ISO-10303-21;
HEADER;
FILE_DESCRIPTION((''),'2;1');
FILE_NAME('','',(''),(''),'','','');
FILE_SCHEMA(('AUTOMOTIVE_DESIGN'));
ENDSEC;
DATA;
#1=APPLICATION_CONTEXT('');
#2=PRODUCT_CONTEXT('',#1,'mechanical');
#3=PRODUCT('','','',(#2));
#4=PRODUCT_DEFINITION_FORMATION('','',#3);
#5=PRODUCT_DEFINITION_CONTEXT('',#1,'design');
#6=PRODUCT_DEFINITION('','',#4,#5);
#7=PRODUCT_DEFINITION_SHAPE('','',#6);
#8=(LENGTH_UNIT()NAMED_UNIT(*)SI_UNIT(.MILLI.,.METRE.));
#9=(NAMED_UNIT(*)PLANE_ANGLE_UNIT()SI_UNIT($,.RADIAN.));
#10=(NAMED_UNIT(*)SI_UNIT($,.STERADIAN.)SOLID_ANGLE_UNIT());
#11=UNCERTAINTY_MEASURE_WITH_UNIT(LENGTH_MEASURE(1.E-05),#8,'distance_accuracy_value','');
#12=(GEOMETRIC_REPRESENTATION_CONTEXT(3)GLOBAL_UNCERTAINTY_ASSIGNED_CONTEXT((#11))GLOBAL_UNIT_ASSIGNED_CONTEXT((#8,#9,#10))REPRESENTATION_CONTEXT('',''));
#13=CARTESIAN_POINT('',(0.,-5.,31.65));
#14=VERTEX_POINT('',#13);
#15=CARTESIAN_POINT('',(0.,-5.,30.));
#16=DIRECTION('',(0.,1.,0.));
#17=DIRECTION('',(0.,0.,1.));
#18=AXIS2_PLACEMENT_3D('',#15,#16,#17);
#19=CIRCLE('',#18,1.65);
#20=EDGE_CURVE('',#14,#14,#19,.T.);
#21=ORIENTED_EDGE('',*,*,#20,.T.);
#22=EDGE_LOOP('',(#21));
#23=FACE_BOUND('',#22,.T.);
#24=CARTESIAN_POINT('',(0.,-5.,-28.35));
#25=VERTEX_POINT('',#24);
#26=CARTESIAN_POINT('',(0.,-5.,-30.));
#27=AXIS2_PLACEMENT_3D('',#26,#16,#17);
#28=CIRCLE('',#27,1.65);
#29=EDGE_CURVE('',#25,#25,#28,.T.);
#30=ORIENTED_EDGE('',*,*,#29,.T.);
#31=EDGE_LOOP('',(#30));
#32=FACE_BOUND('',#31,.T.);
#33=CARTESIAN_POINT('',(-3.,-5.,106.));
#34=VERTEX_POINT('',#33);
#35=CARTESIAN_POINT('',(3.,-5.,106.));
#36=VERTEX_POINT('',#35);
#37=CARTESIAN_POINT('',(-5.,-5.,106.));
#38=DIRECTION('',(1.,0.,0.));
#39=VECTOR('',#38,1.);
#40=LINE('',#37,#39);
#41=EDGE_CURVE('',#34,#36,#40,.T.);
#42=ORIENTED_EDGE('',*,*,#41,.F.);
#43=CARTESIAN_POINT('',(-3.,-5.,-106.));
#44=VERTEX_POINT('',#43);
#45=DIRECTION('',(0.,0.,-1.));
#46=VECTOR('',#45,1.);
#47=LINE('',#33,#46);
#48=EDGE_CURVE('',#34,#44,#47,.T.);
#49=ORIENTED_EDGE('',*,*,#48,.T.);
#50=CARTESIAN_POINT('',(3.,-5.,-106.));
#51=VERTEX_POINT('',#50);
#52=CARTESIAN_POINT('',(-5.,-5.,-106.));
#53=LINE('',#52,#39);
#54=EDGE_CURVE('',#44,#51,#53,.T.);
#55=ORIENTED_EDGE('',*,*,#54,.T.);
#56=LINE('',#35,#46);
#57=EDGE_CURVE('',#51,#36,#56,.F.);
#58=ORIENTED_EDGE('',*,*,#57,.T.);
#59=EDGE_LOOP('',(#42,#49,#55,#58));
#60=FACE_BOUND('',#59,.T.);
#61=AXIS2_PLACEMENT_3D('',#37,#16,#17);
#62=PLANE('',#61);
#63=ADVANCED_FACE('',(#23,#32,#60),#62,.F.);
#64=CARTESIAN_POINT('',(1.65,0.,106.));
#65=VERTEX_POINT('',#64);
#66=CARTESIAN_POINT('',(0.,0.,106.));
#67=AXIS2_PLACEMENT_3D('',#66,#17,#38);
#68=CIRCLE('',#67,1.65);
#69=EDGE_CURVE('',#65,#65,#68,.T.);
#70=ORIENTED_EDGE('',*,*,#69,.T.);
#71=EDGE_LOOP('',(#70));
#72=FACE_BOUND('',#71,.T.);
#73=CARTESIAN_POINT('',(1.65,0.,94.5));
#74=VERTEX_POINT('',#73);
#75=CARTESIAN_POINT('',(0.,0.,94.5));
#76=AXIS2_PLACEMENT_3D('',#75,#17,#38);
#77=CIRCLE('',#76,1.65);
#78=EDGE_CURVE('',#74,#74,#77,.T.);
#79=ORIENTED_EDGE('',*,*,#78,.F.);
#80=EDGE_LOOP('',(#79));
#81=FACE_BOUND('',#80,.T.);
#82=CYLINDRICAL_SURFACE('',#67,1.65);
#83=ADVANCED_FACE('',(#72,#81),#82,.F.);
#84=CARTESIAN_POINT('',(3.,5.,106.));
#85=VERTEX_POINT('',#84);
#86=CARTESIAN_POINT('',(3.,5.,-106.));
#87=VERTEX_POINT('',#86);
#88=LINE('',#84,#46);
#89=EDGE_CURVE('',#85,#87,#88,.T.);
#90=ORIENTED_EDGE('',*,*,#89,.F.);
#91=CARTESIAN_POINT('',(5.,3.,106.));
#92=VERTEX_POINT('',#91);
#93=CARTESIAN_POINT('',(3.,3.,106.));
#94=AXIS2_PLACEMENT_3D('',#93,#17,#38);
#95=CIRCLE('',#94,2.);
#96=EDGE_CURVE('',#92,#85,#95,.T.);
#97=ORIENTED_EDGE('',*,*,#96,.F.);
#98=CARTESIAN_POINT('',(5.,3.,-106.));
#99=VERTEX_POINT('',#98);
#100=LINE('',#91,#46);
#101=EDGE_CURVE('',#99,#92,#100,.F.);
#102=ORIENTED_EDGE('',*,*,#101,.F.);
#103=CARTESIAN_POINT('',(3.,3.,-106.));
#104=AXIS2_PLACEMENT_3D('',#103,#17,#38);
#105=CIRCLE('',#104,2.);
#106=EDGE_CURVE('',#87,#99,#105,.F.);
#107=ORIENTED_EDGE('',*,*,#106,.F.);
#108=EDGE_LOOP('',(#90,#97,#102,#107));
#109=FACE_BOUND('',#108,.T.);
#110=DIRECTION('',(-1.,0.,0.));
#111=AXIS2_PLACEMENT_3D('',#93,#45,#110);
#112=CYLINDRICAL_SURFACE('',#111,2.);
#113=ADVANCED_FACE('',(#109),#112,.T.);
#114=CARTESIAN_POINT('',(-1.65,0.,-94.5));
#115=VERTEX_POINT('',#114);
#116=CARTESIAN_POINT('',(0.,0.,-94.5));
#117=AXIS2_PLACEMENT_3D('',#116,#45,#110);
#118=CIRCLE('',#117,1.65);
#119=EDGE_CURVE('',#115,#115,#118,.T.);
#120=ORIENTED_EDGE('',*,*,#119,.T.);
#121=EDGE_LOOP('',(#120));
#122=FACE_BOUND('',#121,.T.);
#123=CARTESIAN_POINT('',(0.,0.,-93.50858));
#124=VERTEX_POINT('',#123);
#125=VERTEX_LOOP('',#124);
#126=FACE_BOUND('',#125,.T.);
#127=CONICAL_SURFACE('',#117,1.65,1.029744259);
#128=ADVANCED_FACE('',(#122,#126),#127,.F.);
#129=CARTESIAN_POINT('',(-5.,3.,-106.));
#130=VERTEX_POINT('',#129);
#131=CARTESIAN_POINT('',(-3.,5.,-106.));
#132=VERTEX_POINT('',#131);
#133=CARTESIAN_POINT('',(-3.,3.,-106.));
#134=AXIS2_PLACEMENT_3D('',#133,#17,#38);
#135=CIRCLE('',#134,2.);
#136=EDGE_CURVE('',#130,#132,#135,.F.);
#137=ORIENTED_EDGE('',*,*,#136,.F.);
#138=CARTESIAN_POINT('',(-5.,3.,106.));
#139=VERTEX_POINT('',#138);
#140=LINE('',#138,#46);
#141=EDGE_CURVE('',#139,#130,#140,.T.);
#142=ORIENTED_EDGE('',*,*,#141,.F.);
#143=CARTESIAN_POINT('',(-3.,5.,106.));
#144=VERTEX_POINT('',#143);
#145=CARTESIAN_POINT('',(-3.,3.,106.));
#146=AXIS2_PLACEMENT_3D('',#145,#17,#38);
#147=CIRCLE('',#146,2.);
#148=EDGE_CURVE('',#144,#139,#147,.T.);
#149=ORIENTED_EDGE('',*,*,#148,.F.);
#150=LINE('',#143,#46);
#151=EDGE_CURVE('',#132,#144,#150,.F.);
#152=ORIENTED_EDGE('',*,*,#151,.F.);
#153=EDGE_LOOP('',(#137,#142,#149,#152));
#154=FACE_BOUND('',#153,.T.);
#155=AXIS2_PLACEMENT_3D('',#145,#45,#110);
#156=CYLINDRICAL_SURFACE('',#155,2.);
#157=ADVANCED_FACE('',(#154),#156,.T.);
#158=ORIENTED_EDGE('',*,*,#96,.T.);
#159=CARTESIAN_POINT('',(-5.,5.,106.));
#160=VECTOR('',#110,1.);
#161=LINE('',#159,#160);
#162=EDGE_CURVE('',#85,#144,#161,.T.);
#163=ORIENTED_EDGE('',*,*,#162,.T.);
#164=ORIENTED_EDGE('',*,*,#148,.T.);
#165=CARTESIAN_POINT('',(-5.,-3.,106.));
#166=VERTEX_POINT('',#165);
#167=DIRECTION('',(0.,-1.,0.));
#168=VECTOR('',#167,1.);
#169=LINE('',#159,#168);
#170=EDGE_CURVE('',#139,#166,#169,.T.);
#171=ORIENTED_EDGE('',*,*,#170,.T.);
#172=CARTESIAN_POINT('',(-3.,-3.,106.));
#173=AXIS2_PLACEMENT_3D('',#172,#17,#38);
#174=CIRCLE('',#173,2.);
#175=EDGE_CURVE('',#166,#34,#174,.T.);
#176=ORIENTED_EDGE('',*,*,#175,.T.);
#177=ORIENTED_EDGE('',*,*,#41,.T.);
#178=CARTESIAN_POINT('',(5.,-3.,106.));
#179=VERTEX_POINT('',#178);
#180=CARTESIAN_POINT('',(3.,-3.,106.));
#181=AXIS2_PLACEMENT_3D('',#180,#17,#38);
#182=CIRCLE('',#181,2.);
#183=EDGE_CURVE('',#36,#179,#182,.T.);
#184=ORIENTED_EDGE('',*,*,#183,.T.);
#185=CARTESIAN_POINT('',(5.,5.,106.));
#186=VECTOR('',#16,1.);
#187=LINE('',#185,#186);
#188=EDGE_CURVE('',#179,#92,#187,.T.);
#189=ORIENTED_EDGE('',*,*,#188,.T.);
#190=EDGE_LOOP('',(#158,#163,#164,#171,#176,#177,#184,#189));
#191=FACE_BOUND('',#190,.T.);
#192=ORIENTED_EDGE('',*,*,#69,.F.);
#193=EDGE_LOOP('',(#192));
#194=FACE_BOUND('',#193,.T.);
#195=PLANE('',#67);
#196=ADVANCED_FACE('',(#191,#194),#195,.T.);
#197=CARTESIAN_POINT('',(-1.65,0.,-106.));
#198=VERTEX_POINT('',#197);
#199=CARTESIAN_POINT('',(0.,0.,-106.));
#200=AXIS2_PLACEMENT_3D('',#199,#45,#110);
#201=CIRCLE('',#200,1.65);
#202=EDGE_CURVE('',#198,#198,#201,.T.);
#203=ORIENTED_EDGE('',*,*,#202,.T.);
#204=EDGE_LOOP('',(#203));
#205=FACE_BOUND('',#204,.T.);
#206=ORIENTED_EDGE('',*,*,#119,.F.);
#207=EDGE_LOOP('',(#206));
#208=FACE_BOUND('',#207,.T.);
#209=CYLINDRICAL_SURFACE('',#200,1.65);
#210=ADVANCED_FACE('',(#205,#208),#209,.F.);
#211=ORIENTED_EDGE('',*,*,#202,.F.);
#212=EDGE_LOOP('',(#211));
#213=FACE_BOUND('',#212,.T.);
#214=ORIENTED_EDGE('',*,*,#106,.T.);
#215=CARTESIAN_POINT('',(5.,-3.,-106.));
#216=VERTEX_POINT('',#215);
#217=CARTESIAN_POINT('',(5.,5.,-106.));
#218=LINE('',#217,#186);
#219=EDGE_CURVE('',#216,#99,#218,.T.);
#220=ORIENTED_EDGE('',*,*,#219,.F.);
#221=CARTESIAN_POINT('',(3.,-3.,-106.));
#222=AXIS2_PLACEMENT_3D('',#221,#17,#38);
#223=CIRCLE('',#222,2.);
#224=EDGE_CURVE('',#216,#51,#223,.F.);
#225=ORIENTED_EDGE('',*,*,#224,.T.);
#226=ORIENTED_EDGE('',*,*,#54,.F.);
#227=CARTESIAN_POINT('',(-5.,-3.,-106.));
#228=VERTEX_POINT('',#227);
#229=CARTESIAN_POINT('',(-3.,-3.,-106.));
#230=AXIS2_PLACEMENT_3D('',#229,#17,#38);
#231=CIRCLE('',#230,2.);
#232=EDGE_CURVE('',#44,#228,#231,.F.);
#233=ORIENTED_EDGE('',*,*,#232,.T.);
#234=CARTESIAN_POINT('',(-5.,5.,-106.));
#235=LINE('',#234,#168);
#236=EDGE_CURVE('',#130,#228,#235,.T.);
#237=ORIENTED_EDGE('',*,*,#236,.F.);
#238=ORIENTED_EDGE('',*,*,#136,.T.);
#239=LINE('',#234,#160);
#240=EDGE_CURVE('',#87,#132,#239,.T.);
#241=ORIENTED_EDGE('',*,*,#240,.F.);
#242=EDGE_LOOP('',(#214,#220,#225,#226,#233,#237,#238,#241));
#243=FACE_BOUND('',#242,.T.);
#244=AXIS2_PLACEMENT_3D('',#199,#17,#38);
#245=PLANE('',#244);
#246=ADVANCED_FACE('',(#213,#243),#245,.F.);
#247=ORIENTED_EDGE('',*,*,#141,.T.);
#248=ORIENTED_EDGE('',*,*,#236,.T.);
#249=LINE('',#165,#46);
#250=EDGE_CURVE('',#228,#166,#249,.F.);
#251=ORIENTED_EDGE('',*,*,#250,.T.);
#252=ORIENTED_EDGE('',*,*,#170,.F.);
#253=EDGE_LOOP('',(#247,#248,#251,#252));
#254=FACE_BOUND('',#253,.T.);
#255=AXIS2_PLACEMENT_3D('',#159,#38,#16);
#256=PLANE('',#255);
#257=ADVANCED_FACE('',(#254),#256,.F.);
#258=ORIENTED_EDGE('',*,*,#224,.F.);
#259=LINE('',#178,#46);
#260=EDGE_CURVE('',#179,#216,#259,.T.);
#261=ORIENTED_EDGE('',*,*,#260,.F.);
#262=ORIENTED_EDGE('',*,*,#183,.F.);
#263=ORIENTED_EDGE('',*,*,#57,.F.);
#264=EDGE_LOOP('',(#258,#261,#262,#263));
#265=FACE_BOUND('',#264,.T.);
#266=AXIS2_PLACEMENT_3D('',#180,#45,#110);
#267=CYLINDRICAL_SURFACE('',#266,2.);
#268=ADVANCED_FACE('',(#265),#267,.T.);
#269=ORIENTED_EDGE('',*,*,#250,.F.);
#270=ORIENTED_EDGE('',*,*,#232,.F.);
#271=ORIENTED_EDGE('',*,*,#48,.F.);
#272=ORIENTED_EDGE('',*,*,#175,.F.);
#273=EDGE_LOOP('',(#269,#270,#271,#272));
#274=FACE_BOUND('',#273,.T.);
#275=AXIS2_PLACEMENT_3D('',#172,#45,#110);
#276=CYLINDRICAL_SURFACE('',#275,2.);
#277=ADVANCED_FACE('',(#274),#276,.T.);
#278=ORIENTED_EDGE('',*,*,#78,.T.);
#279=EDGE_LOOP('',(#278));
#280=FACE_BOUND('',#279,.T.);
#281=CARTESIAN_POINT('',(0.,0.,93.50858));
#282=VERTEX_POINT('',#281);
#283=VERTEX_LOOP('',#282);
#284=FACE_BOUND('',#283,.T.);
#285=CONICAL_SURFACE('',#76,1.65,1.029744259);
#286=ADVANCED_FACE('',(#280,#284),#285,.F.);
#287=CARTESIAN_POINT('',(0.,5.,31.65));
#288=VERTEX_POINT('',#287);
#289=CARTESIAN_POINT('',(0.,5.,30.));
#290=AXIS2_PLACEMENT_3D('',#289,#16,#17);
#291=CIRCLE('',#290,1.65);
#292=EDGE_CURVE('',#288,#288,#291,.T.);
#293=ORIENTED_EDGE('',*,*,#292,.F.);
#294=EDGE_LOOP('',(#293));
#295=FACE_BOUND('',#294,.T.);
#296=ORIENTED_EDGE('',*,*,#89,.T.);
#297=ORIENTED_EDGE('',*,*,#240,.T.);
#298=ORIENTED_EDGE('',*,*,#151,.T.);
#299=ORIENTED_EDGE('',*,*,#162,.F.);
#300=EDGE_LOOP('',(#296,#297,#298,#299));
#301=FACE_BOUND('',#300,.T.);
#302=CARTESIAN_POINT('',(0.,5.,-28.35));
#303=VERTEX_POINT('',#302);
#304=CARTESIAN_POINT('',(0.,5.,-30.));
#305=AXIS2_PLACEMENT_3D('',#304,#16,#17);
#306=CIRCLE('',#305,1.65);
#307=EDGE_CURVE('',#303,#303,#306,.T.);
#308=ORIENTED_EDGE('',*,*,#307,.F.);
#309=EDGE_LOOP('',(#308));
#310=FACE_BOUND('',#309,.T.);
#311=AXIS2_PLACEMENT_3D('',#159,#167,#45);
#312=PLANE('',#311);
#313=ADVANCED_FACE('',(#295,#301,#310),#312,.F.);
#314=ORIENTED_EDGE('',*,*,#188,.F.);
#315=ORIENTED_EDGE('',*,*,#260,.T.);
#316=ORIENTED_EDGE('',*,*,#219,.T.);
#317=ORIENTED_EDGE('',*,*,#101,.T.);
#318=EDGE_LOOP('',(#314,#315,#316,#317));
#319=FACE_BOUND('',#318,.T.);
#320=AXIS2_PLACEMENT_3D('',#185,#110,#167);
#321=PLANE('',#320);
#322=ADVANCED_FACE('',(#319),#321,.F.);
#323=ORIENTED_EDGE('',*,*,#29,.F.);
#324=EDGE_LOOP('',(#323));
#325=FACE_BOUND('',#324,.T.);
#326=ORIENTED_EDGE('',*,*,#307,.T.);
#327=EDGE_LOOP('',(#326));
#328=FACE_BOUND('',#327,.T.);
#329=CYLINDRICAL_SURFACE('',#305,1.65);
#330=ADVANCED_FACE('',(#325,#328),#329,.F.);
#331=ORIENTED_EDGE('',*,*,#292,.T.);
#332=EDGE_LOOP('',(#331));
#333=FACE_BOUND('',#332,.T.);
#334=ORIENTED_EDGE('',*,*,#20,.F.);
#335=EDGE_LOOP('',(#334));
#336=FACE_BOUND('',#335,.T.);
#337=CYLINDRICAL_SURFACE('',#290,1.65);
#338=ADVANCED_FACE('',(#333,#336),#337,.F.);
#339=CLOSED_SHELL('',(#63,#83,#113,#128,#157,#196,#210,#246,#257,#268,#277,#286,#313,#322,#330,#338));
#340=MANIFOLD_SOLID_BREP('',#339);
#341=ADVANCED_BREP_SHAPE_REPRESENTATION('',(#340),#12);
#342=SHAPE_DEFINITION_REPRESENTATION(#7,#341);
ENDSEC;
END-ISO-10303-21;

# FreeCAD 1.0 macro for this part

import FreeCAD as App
import Part
import Sketcher


def edges_at(feature, points):
    """Names of the edges that pass closest to the given points."""
    edges = feature.Shape.Edges
    near = lambda p: min(range(len(edges)), key=lambda i: edges[i].distToShape(Part.Vertex(*p))[0])
    return sorted({f"Edge{near(p) + 1}" for p in points})

doc = App.newDocument("Part")
params = doc.addObject("Spreadsheet::Sheet", "Params")
for row, (alias, value) in enumerate([
    ("sketch1_width", "10 mm"),
    ("pad1_length", "212 mm"),
    ("sketch2_diameter", "3.3 mm"),
    ("hole_diameter", "3.3 mm"),
    ("hole_depth", "11.5 mm"),
    ("sketch3_diameter", "3.3 mm"),
    ("hole2_diameter", "3.3 mm"),
    ("hole2_depth", "11.5 mm"),
    ("fillet_radius", "2 mm"),
    ("sketch4_diameter", "3.3 mm"),
    ("hole3_diameter", "3.3 mm"),
], start=1):
    params.set(f"A{row}", alias)
    params.set(f"B{row}", "=" + value)
    params.setAlias(f"B{row}", alias)

body = doc.addObject("PartDesign::Body", "Body")

sketch1 = body.newObject("Sketcher::SketchObject", "Sketch")
sketch1.AttachmentSupport = (doc.getObject("XY_Plane"), [""])
sketch1.MapMode = "FlatFace"
sketch1.addGeometry(Part.LineSegment(App.Vector(-5, 5, 0), App.Vector(-5, -5, 0)), False)
sketch1.addGeometry(Part.LineSegment(App.Vector(-5, -5, 0), App.Vector(5, -5, 0)), False)
sketch1.addGeometry(Part.LineSegment(App.Vector(5, -5, 0), App.Vector(5, 5, 0)), False)
sketch1.addGeometry(Part.LineSegment(App.Vector(5, 5, 0), App.Vector(-5, 5, 0)), False)
sketch1.addConstraint(Sketcher.Constraint("Coincident", 0, 2, 1, 1))
sketch1.addConstraint(Sketcher.Constraint("Coincident", 1, 2, 2, 1))
sketch1.addConstraint(Sketcher.Constraint("Coincident", 2, 2, 3, 1))
sketch1.addConstraint(Sketcher.Constraint("Coincident", 3, 2, 0, 1))
sketch1.addConstraint(Sketcher.Constraint("Vertical", 0))
sketch1.addConstraint(Sketcher.Constraint("Horizontal", 1))
sketch1.addConstraint(Sketcher.Constraint("Vertical", 2))
sketch1.addConstraint(Sketcher.Constraint("Horizontal", 3))
sketch1.addConstraint(Sketcher.Constraint("Symmetric", 0, 2, 2, 2, -1, 1))
sketch1.addConstraint(Sketcher.Constraint("Equal", 3, 0))
sketch1.addConstraint(Sketcher.Constraint("DistanceX", 1, 1, 1, 2, 10.0))
sketch1.setExpression("Constraints[10]", "Params.sketch1_width")
pad1 = body.newObject("PartDesign::Pad", "Pad")
pad1.Profile = sketch1
pad1.setExpression("Length", "Params.pad1_length")
pad1.Midplane = True

sketch2 = body.newObject("Sketcher::SketchObject", "Sketch001")
sketch2.AttachmentSupport = (doc.getObject("XY_Plane"), [""])
sketch2.MapMode = "FlatFace"
sketch2.AttachmentOffset = App.Placement(App.Vector(0, 0, 106), App.Rotation())
sketch2.addGeometry(Part.Circle(App.Vector(0, 0, 0), App.Vector(0, 0, 1), 1.6), False)
sketch2.addConstraint(Sketcher.Constraint("Coincident", 0, 3, -1, 1))
sketch2.addConstraint(Sketcher.Constraint("Diameter", 0, 3.3))
sketch2.setExpression("Constraints[1]", "Params.sketch2_diameter")
doc.recompute()
hole = body.newObject("PartDesign::Hole", "Hole")
hole.Profile = sketch2
hole.ThreadType = "None"
hole.setExpression("Diameter", "Params.hole_diameter")
hole.DepthType = "Dimension"
hole.setExpression("Depth", "Params.hole_depth")
hole.DrillPoint = "Angled"
hole.DrillPointAngle = 118

sketch3 = body.newObject("Sketcher::SketchObject", "Sketch002")
sketch3.AttachmentSupport = (doc.getObject("XY_Plane"), [""])
sketch3.MapMode = "FlatFace"
sketch3.AttachmentOffset = App.Placement(App.Vector(0, 0, -106), App.Rotation())
sketch3.addGeometry(Part.Circle(App.Vector(0, 0, 0), App.Vector(0, 0, 1), 1.6), False)
sketch3.addConstraint(Sketcher.Constraint("Coincident", 0, 3, -1, 1))
sketch3.addConstraint(Sketcher.Constraint("Diameter", 0, 3.3))
sketch3.setExpression("Constraints[1]", "Params.sketch3_diameter")
doc.recompute()
hole2 = body.newObject("PartDesign::Hole", "Hole001")
hole2.Profile = sketch3
hole2.ThreadType = "None"
hole2.setExpression("Diameter", "Params.hole2_diameter")
hole2.DepthType = "Dimension"
hole2.setExpression("Depth", "Params.hole2_depth")
hole2.DrillPoint = "Angled"
hole2.DrillPointAngle = 118
hole2.Reversed = True
doc.recompute()

fillet = body.newObject("PartDesign::Fillet", "Fillet")
fillet.Base = (hole2, edges_at(hole2, [
    (-5, 5, 0),
    (5, 5, 0),
    (5, -5, 0),
    (-5, -5, 0),
]))
fillet.setExpression("Radius", "Params.fillet_radius")

sketch4 = body.newObject("Sketcher::SketchObject", "Sketch003")
sketch4.AttachmentSupport = (doc.getObject("XZ_Plane"), [""])
sketch4.MapMode = "FlatFace"
sketch4.AttachmentOffset = App.Placement(App.Vector(0, 0, -5), App.Rotation())
sketch4.addGeometry(Part.Circle(App.Vector(0, 30, 0), App.Vector(0, 0, 1), 1.6), False)
sketch4.addGeometry(Part.Circle(App.Vector(0, -30, 0), App.Vector(0, 0, 1), 1.6), False)
sketch4.addConstraint(Sketcher.Constraint("Equal", 0, 1))
sketch4.addConstraint(Sketcher.Constraint("Symmetric", 0, 3, 1, 3, -1, 1))
sketch4.addConstraint(Sketcher.Constraint("PointOnObject", 0, 3, -2))
sketch4.addConstraint(Sketcher.Constraint("Diameter", 0, 3.3))
sketch4.addConstraint(Sketcher.Constraint("DistanceY", -1, 1, 0, 3, 30.0))
sketch4.setExpression("Constraints[3]", "Params.sketch4_diameter")
doc.recompute()
hole3 = body.newObject("PartDesign::Hole", "Hole002")
hole3.Profile = sketch4
hole3.ThreadType = "None"
hole3.setExpression("Diameter", "Params.hole3_diameter")
hole3.DepthType = "ThroughAll"
hole3.Reversed = True

doc.recompute()
